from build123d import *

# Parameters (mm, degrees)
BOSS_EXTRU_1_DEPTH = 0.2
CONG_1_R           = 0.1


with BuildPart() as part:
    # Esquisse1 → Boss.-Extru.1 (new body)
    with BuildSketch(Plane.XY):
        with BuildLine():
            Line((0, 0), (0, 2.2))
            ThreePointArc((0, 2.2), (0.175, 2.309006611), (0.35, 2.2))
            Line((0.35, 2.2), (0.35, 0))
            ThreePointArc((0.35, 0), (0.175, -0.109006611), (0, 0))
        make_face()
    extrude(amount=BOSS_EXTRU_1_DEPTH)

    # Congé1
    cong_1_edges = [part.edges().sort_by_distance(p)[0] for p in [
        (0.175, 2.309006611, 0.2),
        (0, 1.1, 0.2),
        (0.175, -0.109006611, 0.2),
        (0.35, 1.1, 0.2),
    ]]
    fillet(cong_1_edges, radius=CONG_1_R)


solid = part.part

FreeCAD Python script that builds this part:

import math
import FreeCAD as App
import Part
import Sketcher

V = App.Vector
Q = App.Units.Quantity


def edges_at(feature, points):
    """Names of the edges that pass closest to the given points."""
    edges = feature.Shape.Edges
    near = lambda p: min(range(len(edges)), key=lambda i: edges[i].distToShape(Part.Vertex(*p))[0])
    return sorted({f"Edge{near(p) + 1}" for p in points})

doc = App.newDocument("Part")
body = doc.addObject("PartDesign::Body", "Body")

# Sketch on XY plane
sketch1 = doc.addObject("Sketcher::SketchObject", "Sketch")
body.addObject(sketch1)
sketch1.AttachmentSupport = (doc.XY_Plane, [""])
sketch1.MapMode = "FlatFace"
sketch1.addGeometry(Part.LineSegment(V(0, 2.2, 0), V(0, 0, 0)), False)
sketch1.addGeometry(Part.ArcOfCircle(Part.Circle(V(0.17, 0.09, 0), V(0, 0, 1), 0.19), math.radians(-154), math.radians(-26)), False)
sketch1.addGeometry(Part.LineSegment(V(0.35, 0, 0), V(0.35, 2.2, 0)), False)
sketch1.addGeometry(Part.ArcOfCircle(Part.Circle(V(0.17, 2.11, 0), V(0, 0, 1), 0.19), math.radians(26), math.radians(154)), False)
sketch1.addConstraint(Sketcher.Constraint("Coincident", 0, 2, 1, 1))
sketch1.addConstraint(Sketcher.Constraint("Coincident", 1, 2, 2, 1))
sketch1.addConstraint(Sketcher.Constraint("Coincident", 2, 2, 3, 1))
sketch1.addConstraint(Sketcher.Constraint("Coincident", 3, 2, 0, 1))
sketch1.addConstraint(Sketcher.Constraint("Vertical", 0))
sketch1.addConstraint(Sketcher.Constraint("Vertical", 2))
sketch1.addConstraint(Sketcher.Constraint("Coincident", 0, 2, -1, 1))
sketch1.addConstraint(Sketcher.Constraint("Equal", 1, 3))
sketch1.addConstraint(Sketcher.Constraint("PointOnObject", 1, 2, -1))
sketch1.addConstraint(Sketcher.Constraint("Horizontal", 2, 2, 3, 2))
sketch1.addConstraint(Sketcher.Constraint("DistanceY", 0, 2, 0, 1, Q("2.2 mm")))
sketch1.addConstraint(Sketcher.Constraint("DistanceX", -1, 1, 1, 2, Q("0.35 mm")))
sketch1.addConstraint(Sketcher.Constraint("Radius", 1, Q("0.194976 mm")))
pad1 = doc.addObject("PartDesign::Pad", "Pad")
body.addObject(pad1)
pad1.Profile = sketch1
pad1.Length = 0.2
doc.recompute()

fillet = doc.addObject("PartDesign::Fillet", "Fillet")
body.addObject(fillet)
fillet.Base = (pad1, edges_at(pad1, [
    (0.175, 2.309, 0.2),
    (0, 1.1, 0.2),
    (0.175, -0.109, 0.2),
    (0.35, 1.1, 0.2),
]))
fillet.Radius = 0.1

doc.recompute()
